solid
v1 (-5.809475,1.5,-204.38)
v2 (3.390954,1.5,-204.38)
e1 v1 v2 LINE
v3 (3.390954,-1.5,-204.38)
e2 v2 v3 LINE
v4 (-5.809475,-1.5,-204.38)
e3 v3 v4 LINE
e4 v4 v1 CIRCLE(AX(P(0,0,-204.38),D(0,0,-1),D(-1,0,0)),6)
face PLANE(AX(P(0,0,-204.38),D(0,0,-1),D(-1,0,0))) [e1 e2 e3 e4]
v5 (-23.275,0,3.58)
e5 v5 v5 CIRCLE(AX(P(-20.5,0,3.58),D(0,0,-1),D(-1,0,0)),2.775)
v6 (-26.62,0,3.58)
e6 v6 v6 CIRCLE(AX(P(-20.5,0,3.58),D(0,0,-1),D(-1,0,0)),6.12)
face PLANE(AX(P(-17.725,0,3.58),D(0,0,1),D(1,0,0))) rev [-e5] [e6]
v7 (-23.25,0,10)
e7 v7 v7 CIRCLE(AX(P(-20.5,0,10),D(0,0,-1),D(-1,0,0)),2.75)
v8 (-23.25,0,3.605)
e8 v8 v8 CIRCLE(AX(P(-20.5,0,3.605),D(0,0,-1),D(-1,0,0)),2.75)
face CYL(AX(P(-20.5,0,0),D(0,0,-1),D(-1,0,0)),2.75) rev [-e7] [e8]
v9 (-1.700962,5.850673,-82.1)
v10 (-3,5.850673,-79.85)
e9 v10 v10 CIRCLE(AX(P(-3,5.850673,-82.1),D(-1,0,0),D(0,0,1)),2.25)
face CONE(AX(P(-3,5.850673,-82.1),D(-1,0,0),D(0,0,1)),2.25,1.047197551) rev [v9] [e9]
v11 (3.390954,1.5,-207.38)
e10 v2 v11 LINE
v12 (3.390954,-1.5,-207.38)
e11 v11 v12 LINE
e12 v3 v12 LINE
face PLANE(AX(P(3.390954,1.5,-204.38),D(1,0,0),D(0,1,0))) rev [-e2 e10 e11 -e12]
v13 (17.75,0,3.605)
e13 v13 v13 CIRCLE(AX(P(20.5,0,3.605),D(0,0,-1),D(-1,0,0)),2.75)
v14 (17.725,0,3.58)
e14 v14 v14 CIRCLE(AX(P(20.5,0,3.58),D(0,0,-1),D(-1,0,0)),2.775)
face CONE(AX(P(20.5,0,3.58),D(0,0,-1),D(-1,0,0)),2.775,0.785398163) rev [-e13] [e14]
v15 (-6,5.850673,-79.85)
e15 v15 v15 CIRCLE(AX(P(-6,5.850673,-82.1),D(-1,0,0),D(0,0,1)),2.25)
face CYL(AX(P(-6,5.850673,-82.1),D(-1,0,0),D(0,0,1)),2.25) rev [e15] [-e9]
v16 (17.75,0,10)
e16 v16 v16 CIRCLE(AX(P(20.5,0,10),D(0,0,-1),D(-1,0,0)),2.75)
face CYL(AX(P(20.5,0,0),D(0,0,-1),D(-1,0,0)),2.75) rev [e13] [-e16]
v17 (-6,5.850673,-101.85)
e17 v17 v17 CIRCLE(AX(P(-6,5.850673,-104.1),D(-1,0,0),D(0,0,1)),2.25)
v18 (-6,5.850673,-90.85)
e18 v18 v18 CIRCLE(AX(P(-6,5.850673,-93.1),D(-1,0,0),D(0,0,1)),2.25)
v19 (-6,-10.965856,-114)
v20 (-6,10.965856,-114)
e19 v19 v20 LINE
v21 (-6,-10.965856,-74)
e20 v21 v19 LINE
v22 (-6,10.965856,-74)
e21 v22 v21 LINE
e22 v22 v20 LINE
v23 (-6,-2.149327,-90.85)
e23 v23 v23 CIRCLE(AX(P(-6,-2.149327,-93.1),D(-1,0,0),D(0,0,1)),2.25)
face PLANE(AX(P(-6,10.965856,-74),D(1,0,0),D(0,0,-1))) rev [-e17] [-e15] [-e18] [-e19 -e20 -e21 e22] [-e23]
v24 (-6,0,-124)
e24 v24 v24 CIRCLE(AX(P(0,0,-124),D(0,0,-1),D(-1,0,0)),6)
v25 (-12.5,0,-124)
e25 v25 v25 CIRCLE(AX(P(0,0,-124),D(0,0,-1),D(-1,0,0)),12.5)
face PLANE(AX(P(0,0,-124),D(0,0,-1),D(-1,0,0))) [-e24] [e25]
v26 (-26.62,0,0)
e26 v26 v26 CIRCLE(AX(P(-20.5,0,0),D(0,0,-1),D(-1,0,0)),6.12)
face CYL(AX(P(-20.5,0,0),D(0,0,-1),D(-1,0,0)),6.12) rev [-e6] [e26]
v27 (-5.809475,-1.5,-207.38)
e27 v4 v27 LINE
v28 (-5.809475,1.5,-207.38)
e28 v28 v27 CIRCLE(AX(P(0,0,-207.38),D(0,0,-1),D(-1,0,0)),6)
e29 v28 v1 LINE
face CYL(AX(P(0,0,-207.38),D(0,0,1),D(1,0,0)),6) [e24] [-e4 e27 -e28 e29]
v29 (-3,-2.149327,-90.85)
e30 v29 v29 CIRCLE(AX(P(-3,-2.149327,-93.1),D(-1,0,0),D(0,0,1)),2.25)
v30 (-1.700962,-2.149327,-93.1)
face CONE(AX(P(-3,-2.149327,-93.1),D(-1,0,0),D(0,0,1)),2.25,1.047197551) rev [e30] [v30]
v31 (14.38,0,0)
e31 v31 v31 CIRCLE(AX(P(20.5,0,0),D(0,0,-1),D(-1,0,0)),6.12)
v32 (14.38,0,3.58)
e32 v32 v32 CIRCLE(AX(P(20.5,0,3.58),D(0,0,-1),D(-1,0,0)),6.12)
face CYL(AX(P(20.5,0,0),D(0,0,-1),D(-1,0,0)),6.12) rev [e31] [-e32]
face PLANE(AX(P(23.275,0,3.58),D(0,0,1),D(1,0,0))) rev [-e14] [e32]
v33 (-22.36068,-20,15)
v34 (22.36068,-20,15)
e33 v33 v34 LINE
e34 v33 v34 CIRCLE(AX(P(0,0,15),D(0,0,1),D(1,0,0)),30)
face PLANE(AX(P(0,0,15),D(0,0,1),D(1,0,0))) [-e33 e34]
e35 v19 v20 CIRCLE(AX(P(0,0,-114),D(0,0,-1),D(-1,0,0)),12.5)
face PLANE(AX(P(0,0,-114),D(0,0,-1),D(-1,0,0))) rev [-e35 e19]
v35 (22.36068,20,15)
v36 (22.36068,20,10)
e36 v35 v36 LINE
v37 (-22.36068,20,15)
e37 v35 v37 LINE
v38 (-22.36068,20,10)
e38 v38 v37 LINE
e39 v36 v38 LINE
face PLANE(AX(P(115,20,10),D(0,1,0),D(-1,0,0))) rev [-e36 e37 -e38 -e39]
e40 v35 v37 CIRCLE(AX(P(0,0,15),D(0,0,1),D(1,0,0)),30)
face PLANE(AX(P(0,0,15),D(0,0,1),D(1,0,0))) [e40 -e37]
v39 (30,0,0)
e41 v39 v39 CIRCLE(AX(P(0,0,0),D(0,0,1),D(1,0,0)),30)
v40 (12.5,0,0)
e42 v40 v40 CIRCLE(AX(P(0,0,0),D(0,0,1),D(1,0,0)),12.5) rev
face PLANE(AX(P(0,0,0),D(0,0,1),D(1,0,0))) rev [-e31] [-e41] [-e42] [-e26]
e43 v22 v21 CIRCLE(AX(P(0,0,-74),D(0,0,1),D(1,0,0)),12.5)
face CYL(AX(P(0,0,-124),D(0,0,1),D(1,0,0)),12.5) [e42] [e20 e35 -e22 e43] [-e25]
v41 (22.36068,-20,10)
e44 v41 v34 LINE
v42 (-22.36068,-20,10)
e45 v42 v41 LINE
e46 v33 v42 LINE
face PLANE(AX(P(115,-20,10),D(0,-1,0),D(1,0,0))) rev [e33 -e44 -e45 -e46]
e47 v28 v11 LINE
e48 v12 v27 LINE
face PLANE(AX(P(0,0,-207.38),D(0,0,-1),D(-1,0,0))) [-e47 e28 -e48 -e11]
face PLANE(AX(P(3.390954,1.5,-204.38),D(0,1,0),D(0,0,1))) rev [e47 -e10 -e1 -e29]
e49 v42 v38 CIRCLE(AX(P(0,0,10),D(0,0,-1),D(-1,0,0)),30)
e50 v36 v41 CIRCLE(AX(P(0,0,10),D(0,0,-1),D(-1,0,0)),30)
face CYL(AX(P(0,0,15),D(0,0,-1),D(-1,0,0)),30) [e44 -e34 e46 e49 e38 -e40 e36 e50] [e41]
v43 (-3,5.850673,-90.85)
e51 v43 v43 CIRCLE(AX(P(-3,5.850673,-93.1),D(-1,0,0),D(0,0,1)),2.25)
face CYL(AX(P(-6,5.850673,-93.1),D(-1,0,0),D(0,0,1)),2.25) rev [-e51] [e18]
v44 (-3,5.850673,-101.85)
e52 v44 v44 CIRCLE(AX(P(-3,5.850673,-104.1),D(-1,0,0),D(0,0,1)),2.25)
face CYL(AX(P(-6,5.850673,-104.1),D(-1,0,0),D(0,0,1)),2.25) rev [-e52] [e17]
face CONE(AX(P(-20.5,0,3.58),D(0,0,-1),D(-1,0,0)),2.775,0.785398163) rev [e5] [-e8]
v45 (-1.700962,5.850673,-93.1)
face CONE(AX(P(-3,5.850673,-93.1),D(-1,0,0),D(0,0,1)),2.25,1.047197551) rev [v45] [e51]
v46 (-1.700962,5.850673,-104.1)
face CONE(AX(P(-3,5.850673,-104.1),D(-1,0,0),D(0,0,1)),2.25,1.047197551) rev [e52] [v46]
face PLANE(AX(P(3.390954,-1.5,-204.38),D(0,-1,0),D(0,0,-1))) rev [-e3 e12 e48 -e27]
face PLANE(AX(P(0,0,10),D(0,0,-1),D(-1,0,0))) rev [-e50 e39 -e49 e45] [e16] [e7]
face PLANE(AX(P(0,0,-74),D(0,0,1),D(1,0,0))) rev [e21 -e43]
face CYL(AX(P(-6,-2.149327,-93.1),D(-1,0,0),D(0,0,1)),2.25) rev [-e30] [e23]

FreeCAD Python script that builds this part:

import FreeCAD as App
import Part
import Sketcher

V = App.Vector
Q = App.Units.Quantity

doc = App.newDocument("Part")
body = doc.addObject("PartDesign::Body", "Body")

sketch1 = doc.addObject("Sketcher::SketchObject", "Sketch")
body.addObject(sketch1)
sketch1.AttachmentSupport = (doc.XY_Plane, [""])
sketch1.MapMode = "FlatFace"
sketch1.addGeometry(Part.Circle(V(0, 0, 0), V(0, 0, 1), 30), False)
sketch1.addConstraint([
    Sketcher.Constraint("Coincident", 0, 3, -1, 1),
    Sketcher.Constraint("Diameter", 0, Q("60 mm")),
])
pad1 = doc.addObject("PartDesign::Pad", "Pad")
body.addObject(pad1)
pad1.Profile = sketch1
pad1.Length = 15

sketch2 = doc.addObject("Sketcher::SketchObject", "Sketch001")
body.addObject(sketch2)
sketch2.AttachmentSupport = (doc.XY_Plane, [""])
sketch2.MapMode = "FlatFace"
sketch2.addGeometry(Part.Circle(V(0, 0, 0), V(0, 0, 1), 12), False)
sketch2.addConstraint([
    Sketcher.Constraint("Coincident", 0, 3, -1, 1),
    Sketcher.Constraint("Diameter", 0, Q("25 mm")),
])
pad2 = doc.addObject("PartDesign::Pad", "Pad001")
body.addObject(pad2)
pad2.Profile = sketch2
pad2.Length = 124
pad2.Reversed = True

sketch3 = doc.addObject("Sketcher::SketchObject", "Sketch002")
body.addObject(sketch3)
sketch3.AttachmentSupport = (doc.XY_Plane, [""])
sketch3.MapMode = "FlatFace"
sketch3.AttachmentOffset = App.Placement(V(0, 0, 15), App.Rotation())
sketch3.addGeometry([
    Part.LineSegment(V(-115, 20, 0), V(-115, -20, 0)),
    Part.LineSegment(V(-115, -20, 0), V(115, -20, 0)),
    Part.LineSegment(V(115, -20, 0), V(115, 20, 0)),
    Part.LineSegment(V(115, 20, 0), V(-115, 20, 0)),
], False)
sketch3.addConstraint([
    Sketcher.Constraint("Coincident", 0, 2, 1, 1),
    Sketcher.Constraint("Coincident", 1, 2, 2, 1),
    Sketcher.Constraint("Coincident", 2, 2, 3, 1),
    Sketcher.Constraint("Coincident", 3, 2, 0, 1),
    Sketcher.Constraint("Vertical", 0),
    Sketcher.Constraint("Horizontal", 1),
    Sketcher.Constraint("Vertical", 2),
    Sketcher.Constraint("Horizontal", 3),
    Sketcher.Constraint("Symmetric", 0, 2, 2, 2, -1, 1),
    Sketcher.Constraint("DistanceX", 1, 1, 1, 2, Q("230 mm")),
    Sketcher.Constraint("DistanceY", 0, 2, 0, 1, Q("40 mm")),
])
pocket1 = doc.addObject("PartDesign::Pocket", "Pocket")
body.addObject(pocket1)
pocket1.Profile = sketch3
pocket1.Length = 5

sketch4 = doc.addObject("Sketcher::SketchObject", "Sketch003")
body.addObject(sketch4)
sketch4.AttachmentSupport = (doc.YZ_Plane, [""])
sketch4.MapMode = "FlatFace"
sketch4.AttachmentOffset = App.Placement(V(0, 0, -20.5), App.Rotation())
sketch4.addGeometry([
    Part.LineSegment(V(0, 15, 0), V(0, 0, 0)),
    Part.LineSegment(V(0, 0, 0), V(6.12, 0, 0)),
    Part.LineSegment(V(6.12, 0, 0), V(6.12, 3.58, 0)),
    Part.LineSegment(V(6.12, 3.58, 0), V(2.775, 3.58, 0)),
    Part.LineSegment(V(2.775, 3.58, 0), V(2.75, 3.605, 0)),
    Part.LineSegment(V(2.75, 3.605, 0), V(2.75, 15, 0)),
    Part.LineSegment(V(2.75, 15, 0), V(0, 15, 0)),
], False)
sketch4.addConstraint([
    Sketcher.Constraint("Coincident", 0, 2, 1, 1),
    Sketcher.Constraint("Coincident", 1, 2, 2, 1),
    Sketcher.Constraint("Coincident", 2, 2, 3, 1),
    Sketcher.Constraint("Coincident", 3, 2, 4, 1),
    Sketcher.Constraint("Coincident", 4, 2, 5, 1),
    Sketcher.Constraint("Coincident", 5, 2, 6, 1),
    Sketcher.Constraint("Coincident", 6, 2, 0, 1),
    Sketcher.Constraint("Vertical", 0),
    Sketcher.Constraint("Horizontal", 1),
    Sketcher.Constraint("Vertical", 2),
    Sketcher.Constraint("Horizontal", 3),
    Sketcher.Constraint("Vertical", 5),
    Sketcher.Constraint("Horizontal", 6),
    Sketcher.Constraint("Coincident", 0, 2, -1, 1),
    Sketcher.Constraint("DistanceY", 0, 2, 0, 1, Q("15 mm")),
    Sketcher.Constraint("Angle", 4, Q("135 deg")),
    Sketcher.Constraint("DistanceX", 1, 1, 1, 2, Q("6.12 mm")),
    Sketcher.Constraint("DistanceX", 6, 2, 6, 1, Q("2.75 mm")),
    Sketcher.Constraint("DistanceY", 2, 1, 2, 2, Q("3.58 mm")),
    Sketcher.Constraint("DistanceX", 3, 2, 3, 1, Q("3.345 mm")),
])
groove = doc.addObject("PartDesign::Groove", "Groove")
body.addObject(groove)
groove.Profile = sketch4
groove.ReferenceAxis = (sketch4, ["V_Axis"])
groove.Angle = 360
doc.recompute()

linearpattern = doc.addObject("PartDesign::LinearPattern", "LinearPattern")
body.addObject(linearpattern)
linearpattern.Originals = [groove]
linearpattern.Direction = (doc.X_Axis, [""])
linearpattern.Mode = "offset"
linearpattern.Offset = 41
linearpattern.Occurrences = 2
body.Tip = linearpattern

sketch5 = doc.addObject("Sketcher::SketchObject", "Sketch004")
body.addObject(sketch5)
sketch5.AttachmentSupport = (doc.XY_Plane, [""])
sketch5.MapMode = "FlatFace"
sketch5.AttachmentOffset = App.Placement(V(0, 0, -124), App.Rotation())
sketch5.addGeometry(Part.Circle(V(0, 0, 0), V(0, 0, 1), 6), False)
sketch5.addConstraint([
    Sketcher.Constraint("Coincident", 0, 3, -1, 1),
    Sketcher.Constraint("Diameter", 0, Q("12 mm")),
])
pad3 = doc.addObject("PartDesign::Pad", "Pad002")
body.addObject(pad3)
pad3.Profile = sketch5
pad3.Length = 83.38
pad3.Reversed = True

sketch6 = doc.addObject("Sketcher::SketchObject", "Sketch005")
body.addObject(sketch6)
sketch6.AttachmentSupport = (doc.XY_Plane, [""])
sketch6.MapMode = "FlatFace"
sketch6.AttachmentOffset = App.Placement(V(0, 0, -207.38), App.Rotation())
sketch6.addGeometry([
    Part.LineSegment(V(3.4, 1.5, 0), V(3.4, -1.5, 0)),
    Part.LineSegment(V(3.4, -1.5, 0), V(-7, -1.5, 0)),
    Part.LineSegment(V(-7, -1.5, 0), V(-7, 1.5, 0)),
    Part.LineSegment(V(-7, 1.5, 0), V(3.4, 1.5, 0)),
], False)
sketch6.addConstraint([
    Sketcher.Constraint("Coincident", 0, 2, 1, 1),
    Sketcher.Constraint("Coincident", 1, 2, 2, 1),
    Sketcher.Constraint("Coincident", 2, 2, 3, 1),
    Sketcher.Constraint("Coincident", 3, 2, 0, 1),
    Sketcher.Constraint("Vertical", 0),
    Sketcher.Constraint("Horizontal", 1),
    Sketcher.Constraint("Vertical", 2),
    Sketcher.Constraint("Horizontal", 3),
    Sketcher.Constraint("DistanceY", 0, 2, 0, 1, Q("3 mm")),
    Sketcher.Constraint("DistanceY", 0, 2, -1, 1, Q("1.5 mm")),
    Sketcher.Constraint("DistanceX", 1, 2, 1, 1, Q("10.356322 mm")),
    Sketcher.Constraint("DistanceX", 1, 2, -1, 1, Q("6.965369 mm")),
])
pocket2 = doc.addObject("PartDesign::Pocket", "Pocket001")
body.addObject(pocket2)
pocket2.Profile = sketch6
pocket2.Length = 3
pocket2.Reversed = True

sketch7 = doc.addObject("Sketcher::SketchObject", "Sketch006")
body.addObject(sketch7)
sketch7.AttachmentSupport = (doc.XY_Plane, [""])
sketch7.MapMode = "FlatFace"
sketch7.AttachmentOffset = App.Placement(V(0, 0, -124), App.Rotation())
sketch7.addGeometry([
    Part.LineSegment(V(-6, 11, 0), V(-6, -11, 0)),
    Part.LineSegment(V(-6, -11, 0), V(-14, -11, 0)),
    Part.LineSegment(V(-14, -11, 0), V(-14, 11, 0)),
    Part.LineSegment(V(-14, 11, 0), V(-6, 11, 0)),
], False)
sketch7.addConstraint([
    Sketcher.Constraint("Coincident", 0, 2, 1, 1),
    Sketcher.Constraint("Coincident", 1, 2, 2, 1),
    Sketcher.Constraint("Coincident", 2, 2, 3, 1),
    Sketcher.Constraint("Coincident", 3, 2, 0, 1),
    Sketcher.Constraint("Vertical", 0),
    Sketcher.Constraint("Horizontal", 1),
    Sketcher.Constraint("Vertical", 2),
    Sketcher.Constraint("Horizontal", 3),
    Sketcher.Constraint("DistanceX", 0, 2, -1, 1, Q("6 mm")),
    Sketcher.Constraint("DistanceX", 1, 2, 1, 1, Q("7.933444 mm")),
    Sketcher.Constraint("DistanceY", 0, 2, 0, 1, Q("21.931712 mm")),
    Sketcher.Constraint("DistanceY", 0, 2, -1, 1, Q("10.965856 mm")),
])
pocket3 = doc.addObject("PartDesign::Pocket", "Pocket002")
body.addObject(pocket3)
pocket3.Profile = sketch7
pocket3.Length = 50
pocket3.Reversed = True

sketch8 = doc.addObject("Sketcher::SketchObject", "Sketch007")
body.addObject(sketch8)
sketch8.AttachmentSupport = (doc.XY_Plane, [""])
sketch8.MapMode = "FlatFace"
sketch8.AttachmentOffset = App.Placement(V(0, 0, -114), App.Rotation())
sketch8.addGeometry(Part.Circle(V(0, 0, 0), V(0, 0, 1), 12), False)
sketch8.addConstraint([
    Sketcher.Constraint("Coincident", 0, 3, -1, 1),
    Sketcher.Constraint("Diameter", 0, Q("25 mm")),
])
pad4 = doc.addObject("PartDesign::Pad", "Pad003")
body.addObject(pad4)
pad4.Profile = sketch8
pad4.Length = 10
pad4.Reversed = True

sketch9 = doc.addObject("Sketcher::SketchObject", "Sketch008")
body.addObject(sketch9)
sketch9.AttachmentSupport = (doc.YZ_Plane, [""])
sketch9.MapMode = "FlatFace"
sketch9.AttachmentOffset = App.Placement(V(0, 0, -6), App.Rotation())
sketch9.addGeometry([
    Part.Circle(V(5.9, -82.1, 0), V(0, 0, 1), 2.2),
    Part.Circle(V(-2.1, -93.1, 0), V(0, 0, 1), 2.2),
    Part.Circle(V(5.9, -93.1, 0), V(0, 0, 1), 2.2),
    Part.Circle(V(5.9, -104.1, 0), V(0, 0, 1), 2.2),
], False)
sketch9.addConstraint([
    Sketcher.Constraint("Equal", 0, 1),
    Sketcher.Constraint("Equal", 1, 2),
    Sketcher.Constraint("Equal", 2, 3),
    Sketcher.Constraint("Horizontal", 1, 3, 2, 3),
    Sketcher.Constraint("Vertical", 0, 3, 2, 3),
    Sketcher.Constraint("Vertical", 2, 3, 3, 3),
    Sketcher.Constraint("Diameter", 0, Q("4.5 mm")),
    Sketcher.Constraint("DistanceX", 1, 3, 0, 3, Q("8 mm")),
    Sketcher.Constraint("DistanceY", 1, 3, 0, 3, Q("11 mm")),
    Sketcher.Constraint("DistanceY", 3, 3, 2, 3, Q("11 mm")),
    Sketcher.Constraint("DistanceY", 0, 3, -1, 1, Q("82.1 mm")),
    Sketcher.Constraint("DistanceX", -1, 1, 0, 3, Q("5.850673 mm")),
])
doc.recompute()
hole = doc.addObject("PartDesign::Hole", "Hole")
body.addObject(hole)
hole.Profile = sketch9
hole.ThreadType = "None"
hole.Diameter = 4.5
hole.DepthType = "Dimension"
hole.Depth = 3
hole.DrillPoint = "Angled"
hole.DrillPointAngle = 120
hole.Reversed = True

doc.recompute()
